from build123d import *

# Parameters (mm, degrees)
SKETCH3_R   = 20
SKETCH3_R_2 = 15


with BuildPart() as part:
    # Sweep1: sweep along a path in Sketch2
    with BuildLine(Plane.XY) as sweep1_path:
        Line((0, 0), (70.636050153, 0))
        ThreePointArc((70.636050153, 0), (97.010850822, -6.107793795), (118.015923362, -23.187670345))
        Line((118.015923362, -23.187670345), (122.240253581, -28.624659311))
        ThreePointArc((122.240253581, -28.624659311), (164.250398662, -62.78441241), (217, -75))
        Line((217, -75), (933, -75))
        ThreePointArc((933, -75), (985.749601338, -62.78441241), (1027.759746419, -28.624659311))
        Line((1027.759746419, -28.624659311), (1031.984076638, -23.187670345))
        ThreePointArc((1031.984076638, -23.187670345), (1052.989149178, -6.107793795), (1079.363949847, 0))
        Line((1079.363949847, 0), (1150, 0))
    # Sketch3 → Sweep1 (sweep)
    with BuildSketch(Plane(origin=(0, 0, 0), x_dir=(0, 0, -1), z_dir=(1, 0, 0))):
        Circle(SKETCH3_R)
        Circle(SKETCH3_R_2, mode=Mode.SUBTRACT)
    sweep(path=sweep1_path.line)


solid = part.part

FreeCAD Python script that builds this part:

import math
import FreeCAD as App
import Part
import Sketcher
from FreeCAD import Vector

doc = App.newDocument("Part")
body = doc.addObject("PartDesign::Body", "Body")

# Sketch on YZ plane
sketch1 = body.newObject("Sketcher::SketchObject", "Sketch")
sketch1.AttachmentSupport = (doc.getObject("YZ_Plane"), [""])
sketch1.MapMode = "FlatFace"
sketch1.addGeometry(Part.Circle(Vector(0, 0, 0), Vector(0, 0, 1), 20), False)
sketch1.addGeometry(Part.Circle(Vector(0, 0, 0), Vector(0, 0, 1), 15), False)
sketch1.addConstraint(Sketcher.Constraint("Coincident", 0, 3, -1, 1))
sketch1.addConstraint(Sketcher.Constraint("Coincident", 1, 3, -1, 1))
sketch1.addConstraint(Sketcher.Constraint("Diameter", 0, 40.0))
sketch1.addConstraint(Sketcher.Constraint("Diameter", 1, 30.0))

# Sketch on XY plane
sketch2 = body.newObject("Sketcher::SketchObject", "Sketch001")
sketch2.AttachmentSupport = (doc.getObject("XY_Plane"), [""])
sketch2.MapMode = "FlatFace"
sketch2.addGeometry(Part.LineSegment(Vector(0, 0, 0), Vector(71, 0, 0)), False)
sketch2.addGeometry(Part.ArcOfCircle(Part.Circle(Vector(71, -60, 0), Vector(0, 0, 1), 60), math.radians(38), math.radians(90)), False)
sketch2.addGeometry(Part.LineSegment(Vector(118, -23, 0), Vector(122, -29, 0)), False)
sketch2.addGeometry(Part.ArcOfCircle(Part.Circle(Vector(217, 45, 0), Vector(0, 0, 1), 120), math.radians(-142), math.radians(-90)), False)
sketch2.addGeometry(Part.LineSegment(Vector(217, -75, 0), Vector(933, -75, 0)), False)
sketch2.addGeometry(Part.ArcOfCircle(Part.Circle(Vector(933, 45, 0), Vector(0, 0, 1), 120), math.radians(-90), math.radians(-38)), False)
sketch2.addGeometry(Part.LineSegment(Vector(1028, -29, 0), Vector(1032, -23, 0)), False)
sketch2.addGeometry(Part.ArcOfCircle(Part.Circle(Vector(1079, -60, 0), Vector(0, 0, 1), 60), math.radians(90), math.radians(142)), False)
sketch2.addGeometry(Part.LineSegment(Vector(1079, 0, 0), Vector(1150, 0, 0)), False)
sketch2.addConstraint(Sketcher.Constraint("Tangent", 0, 2, 1, 2))
sketch2.addConstraint(Sketcher.Constraint("Tangent", 1, 1, 2, 1))
sketch2.addConstraint(Sketcher.Constraint("Tangent", 2, 2, 3, 1))
sketch2.addConstraint(Sketcher.Constraint("Tangent", 3, 2, 4, 1))
sketch2.addConstraint(Sketcher.Constraint("Tangent", 4, 2, 5, 1))
sketch2.addConstraint(Sketcher.Constraint("Tangent", 5, 2, 6, 1))
sketch2.addConstraint(Sketcher.Constraint("Tangent", 6, 2, 7, 2))
sketch2.addConstraint(Sketcher.Constraint("Tangent", 7, 1, 8, 1))
sketch2.addConstraint(Sketcher.Constraint("Horizontal", 0))
sketch2.addConstraint(Sketcher.Constraint("Horizontal", 4))
sketch2.addConstraint(Sketcher.Constraint("Horizontal", 8))
sketch2.addConstraint(Sketcher.Constraint("Coincident", 0, 1, -1, 1))
sketch2.addConstraint(Sketcher.Constraint("Equal", 3, 5))
sketch2.addConstraint(Sketcher.Constraint("Equal", 1, 7))
sketch2.addConstraint(Sketcher.Constraint("PointOnObject", 7, 1, -1))
sketch2.addConstraint(Sketcher.Constraint("Horizontal", 2, 2, 5, 2))
sketch2.addConstraint(Sketcher.Constraint("Equal", 0, 8))
sketch2.addConstraint(Sketcher.Constraint("Radius", 1, 60.0))
sketch2.addConstraint(Sketcher.Constraint("Radius", 3, 120.0))
sketch2.addConstraint(Sketcher.Constraint("DistanceX", 4, 1, 4, 2, 716.0))
sketch2.addConstraint(Sketcher.Constraint("DistanceX", -1, 1, 3, 3, 217.0))
sketch2.addConstraint(Sketcher.Constraint("DistanceY", -1, 1, 3, 3, 45.0))
sketch2.addConstraint(Sketcher.Constraint("DistanceX", 0, 1, 0, 2, 70.63605))
doc.recompute()

additivepipe = body.newObject("PartDesign::AdditivePipe", "AdditivePipe")
additivepipe.Profile = sketch1
additivepipe.Spine = (sketch2, ["Edge1", "Edge2", "Edge3", "Edge4", "Edge5", "Edge6", "Edge7", "Edge8", "Edge9"])

doc.recompute()
